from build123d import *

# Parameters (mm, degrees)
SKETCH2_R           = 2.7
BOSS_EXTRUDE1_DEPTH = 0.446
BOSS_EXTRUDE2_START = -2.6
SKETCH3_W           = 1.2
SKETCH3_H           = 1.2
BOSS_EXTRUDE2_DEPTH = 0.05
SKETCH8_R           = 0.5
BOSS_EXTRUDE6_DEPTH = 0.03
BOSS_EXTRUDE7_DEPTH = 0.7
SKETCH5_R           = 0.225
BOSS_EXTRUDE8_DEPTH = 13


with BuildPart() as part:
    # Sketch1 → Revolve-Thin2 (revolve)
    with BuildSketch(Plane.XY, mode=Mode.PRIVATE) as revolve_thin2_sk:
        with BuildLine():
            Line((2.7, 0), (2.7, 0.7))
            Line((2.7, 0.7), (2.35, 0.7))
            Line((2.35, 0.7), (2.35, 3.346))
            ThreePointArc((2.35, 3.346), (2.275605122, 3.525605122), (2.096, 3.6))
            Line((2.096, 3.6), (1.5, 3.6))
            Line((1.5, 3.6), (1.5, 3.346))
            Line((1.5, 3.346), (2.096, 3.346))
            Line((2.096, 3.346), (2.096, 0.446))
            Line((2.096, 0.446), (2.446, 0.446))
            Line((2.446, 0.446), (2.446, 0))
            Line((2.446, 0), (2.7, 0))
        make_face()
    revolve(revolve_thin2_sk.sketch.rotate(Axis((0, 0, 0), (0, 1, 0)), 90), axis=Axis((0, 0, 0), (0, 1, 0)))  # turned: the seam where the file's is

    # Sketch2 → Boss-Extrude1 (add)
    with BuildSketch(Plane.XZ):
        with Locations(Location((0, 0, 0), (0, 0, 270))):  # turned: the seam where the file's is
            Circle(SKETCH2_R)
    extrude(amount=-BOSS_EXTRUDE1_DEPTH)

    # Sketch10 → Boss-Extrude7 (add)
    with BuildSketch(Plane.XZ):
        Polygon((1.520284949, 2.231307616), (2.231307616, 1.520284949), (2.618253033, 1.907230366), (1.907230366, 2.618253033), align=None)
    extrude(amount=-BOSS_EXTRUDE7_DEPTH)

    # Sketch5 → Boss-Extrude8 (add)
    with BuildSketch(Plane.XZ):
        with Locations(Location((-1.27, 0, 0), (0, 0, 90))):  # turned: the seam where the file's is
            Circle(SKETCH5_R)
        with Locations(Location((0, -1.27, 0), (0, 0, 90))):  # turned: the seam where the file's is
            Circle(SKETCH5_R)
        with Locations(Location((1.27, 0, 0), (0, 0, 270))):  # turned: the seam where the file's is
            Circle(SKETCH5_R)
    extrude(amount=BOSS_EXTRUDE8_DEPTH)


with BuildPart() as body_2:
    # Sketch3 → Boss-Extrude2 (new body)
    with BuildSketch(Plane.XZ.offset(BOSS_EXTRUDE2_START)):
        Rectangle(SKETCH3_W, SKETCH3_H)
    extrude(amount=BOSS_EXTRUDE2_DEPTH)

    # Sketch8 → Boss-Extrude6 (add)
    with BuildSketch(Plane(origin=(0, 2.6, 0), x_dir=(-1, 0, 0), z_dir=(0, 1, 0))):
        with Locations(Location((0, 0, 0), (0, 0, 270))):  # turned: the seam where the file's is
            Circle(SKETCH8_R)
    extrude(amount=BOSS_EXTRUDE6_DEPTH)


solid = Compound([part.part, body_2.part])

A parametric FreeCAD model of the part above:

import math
import FreeCAD as App
import Part
import Sketcher

V = App.Vector
Q = App.Units.Quantity


def add_polygon(sketch, points):
    """Adds a closed chain of lines whose ends are joined by coincident constraints."""
    first, n = sketch.GeometryCount, len(points)
    for a, b in zip(points, points[1:] + points[:1]):
        sketch.addGeometry(Part.LineSegment(App.Vector(*a, 0), App.Vector(*b, 0)), False)
    for i in range(n):
        sketch.addConstraint(Sketcher.Constraint("Coincident", first + i, 2, first + (i + 1) % n, 1))

doc = App.newDocument("Part")
body = doc.addObject("PartDesign::Body", "Body")

sketch1 = body.newObject("Sketcher::SketchObject", "Sketch")
sketch1.AttachmentSupport = (doc.getObject("XY_Plane"), [""])
sketch1.MapMode = "FlatFace"
sketch1.addGeometry([
    Part.LineSegment(V(2.7, 0, 0), V(2.7, 0.7, 0)),
    Part.LineSegment(V(2.7, 0.7, 0), V(2.35, 0.7, 0)),
    Part.LineSegment(V(2.35, 0.7, 0), V(2.35, 3.346, 0)),
    Part.ArcOfCircle(Part.Circle(V(2.096, 3.346, 0), V(0, 0, 1), 0.254), math.radians(0), math.radians(90)),
    Part.LineSegment(V(2.096, 3.6, 0), V(1.5, 3.6, 0)),
    Part.LineSegment(V(1.5, 3.6, 0), V(1.5, 3.346, 0)),
    Part.LineSegment(V(1.5, 3.346, 0), V(2.096, 3.346, 0)),
    Part.LineSegment(V(2.096, 3.346, 0), V(2.096, 0.446, 0)),
    Part.LineSegment(V(2.096, 0.446, 0), V(2.446, 0.446, 0)),
    Part.LineSegment(V(2.446, 0.446, 0), V(2.446, 0, 0)),
    Part.LineSegment(V(2.446, 0, 0), V(2.7, 0, 0)),
], False)
sketch1.addConstraint([
    Sketcher.Constraint("Coincident", 0, 2, 1, 1),
    Sketcher.Constraint("Coincident", 1, 2, 2, 1),
    Sketcher.Constraint("Tangent", 2, 2, 3, 1),
    Sketcher.Constraint("Tangent", 3, 2, 4, 1),
    Sketcher.Constraint("Coincident", 4, 2, 5, 1),
    Sketcher.Constraint("Coincident", 5, 2, 6, 1),
    Sketcher.Constraint("Coincident", 6, 2, 7, 1),
    Sketcher.Constraint("Coincident", 7, 2, 8, 1),
    Sketcher.Constraint("Coincident", 8, 2, 9, 1),
    Sketcher.Constraint("Coincident", 9, 2, 10, 1),
    Sketcher.Constraint("Coincident", 10, 2, 0, 1),
    Sketcher.Constraint("Vertical", 0),
    Sketcher.Constraint("Horizontal", 1),
    Sketcher.Constraint("Vertical", 2),
    Sketcher.Constraint("Horizontal", 4),
    Sketcher.Constraint("Vertical", 5),
    Sketcher.Constraint("Horizontal", 6),
    Sketcher.Constraint("Vertical", 7),
    Sketcher.Constraint("Horizontal", 8),
    Sketcher.Constraint("Vertical", 9),
    Sketcher.Constraint("Horizontal", 10),
    Sketcher.Constraint("Coincident", 6, 2, 3, 3),
    Sketcher.Constraint("PointOnObject", 9, 2, -1),
    Sketcher.Constraint("Equal", 1, 8),
    Sketcher.Constraint("DistanceY", 0, 1, 0, 2, 0.7),
    Sketcher.Constraint("DistanceY", 7, 2, 7, 1, 2.9),
    Sketcher.Constraint("Radius", 3, 0.254),
    Sketcher.Constraint("DistanceX", 1, 2, 1, 1, 0.35),
    Sketcher.Constraint("DistanceX", -1, 1, 0, 2, 2.7),
    Sketcher.Constraint("DistanceY", -1, 1, 3, 2, 3.6),
    Sketcher.Constraint("DistanceX", -1, 1, 4, 2, 1.5),
])
revolution = body.newObject("PartDesign::Revolution", "Revolution")
revolution.Profile = sketch1
revolution.ReferenceAxis = (sketch1, ["V_Axis"])
revolution.Angle = 360

sketch2 = body.newObject("Sketcher::SketchObject", "Sketch001")
sketch2.AttachmentSupport = (doc.getObject("XZ_Plane"), [""])
sketch2.MapMode = "FlatFace"
sketch2.addGeometry(Part.Circle(V(0, 0, 0), V(0, 0, 1), 2.7), False)
sketch2.addConstraint([
    Sketcher.Constraint("Coincident", 0, 3, -1, 1),
    Sketcher.Constraint("Diameter", 0, 5.4),
])
pad1 = body.newObject("PartDesign::Pad", "Pad")
pad1.Profile = sketch2
pad1.Length = 0.446
pad1.Reversed = True

sketch3 = body.newObject("Sketcher::SketchObject", "Sketch002")
sketch3.AttachmentSupport = (doc.getObject("XZ_Plane"), [""])
sketch3.MapMode = "FlatFace"
add_polygon(sketch3, [(1.520285, 2.231308), (2.231308, 1.520285), (2.618253, 1.90723), (1.90723, 2.618253)])
sketch3.addConstraint([
    Sketcher.Constraint("Perpendicular", 0, 1),
    Sketcher.Constraint("Perpendicular", 1, 2),
    Sketcher.Constraint("Perpendicular", 2, 3),
    Sketcher.Constraint("Angle", 0, Q("-45 deg")),
    Sketcher.Constraint("DistanceY", -1, 1, 1, 2, 1.90723),
    Sketcher.Constraint("DistanceX", -1, 1, 2, 2, 1.90723),
    Sketcher.Constraint("DistanceY", 0, 2, 2, 2, 1.097968),
    Sketcher.Constraint("Distance", 0, 1.005538),
])
pad2 = body.newObject("PartDesign::Pad", "Pad001")
pad2.Profile = sketch3
pad2.Length = 0.7
pad2.Reversed = True

sketch4 = body.newObject("Sketcher::SketchObject", "Sketch003")
sketch4.AttachmentSupport = (doc.getObject("XZ_Plane"), [""])
sketch4.MapMode = "FlatFace"
sketch4.addGeometry([
    Part.Circle(V(-1.27, 0, 0), V(0, 0, 1), 0.225),
    Part.Circle(V(0, -1.27, 0), V(0, 0, 1), 0.225),
    Part.Circle(V(1.27, 0, 0), V(0, 0, 1), 0.225),
], False)
sketch4.addConstraint([
    Sketcher.Constraint("Equal", 0, 1),
    Sketcher.Constraint("Equal", 1, 2),
    Sketcher.Constraint("Symmetric", 0, 3, 2, 3, -1, 1),
    Sketcher.Constraint("PointOnObject", 0, 3, -1),
    Sketcher.Constraint("PointOnObject", 1, 3, -2),
    Sketcher.Constraint("Diameter", 0, 0.45),
    Sketcher.Constraint("DistanceX", 0, 3, -1, 1, 1.27),
    Sketcher.Constraint("DistanceY", 1, 3, -1, 1, 1.27),
])
pad3 = body.newObject("PartDesign::Pad", "Pad002")
pad3.Profile = sketch4
pad3.Length = 13
body2 = doc.addObject("PartDesign::Body", "Body001")

sketch5 = body2.newObject("Sketcher::SketchObject", "Sketch004")
sketch5.AttachmentSupport = (doc.getObject("XZ_Plane001"), [""])
sketch5.MapMode = "FlatFace"
sketch5.AttachmentOffset = App.Placement(V(0, 0, -2.6), App.Rotation())
add_polygon(sketch5, [(-0.6, 0.6), (-0.6, -0.6), (0.6, -0.6), (0.6, 0.6)])
sketch5.addConstraint([
    Sketcher.Constraint("Vertical", 0),
    Sketcher.Constraint("Horizontal", 1),
    Sketcher.Constraint("Vertical", 2),
    Sketcher.Constraint("Horizontal", 3),
    Sketcher.Constraint("Symmetric", 0, 2, 2, 2, -1, 1),
    Sketcher.Constraint("Equal", 3, 0),
    Sketcher.Constraint("DistanceX", 1, 1, 1, 2, 1.2),
])
pad4 = body2.newObject("PartDesign::Pad", "Pad003")
pad4.Profile = sketch5
pad4.Length = 0.05

sketch6 = body2.newObject("Sketcher::SketchObject", "Sketch005")
sketch6.AttachmentSupport = (doc.getObject("XZ_Plane001"), [""])
sketch6.MapMode = "FlatFace"
sketch6.AttachmentOffset = App.Placement(V(0, 0, -2.6), App.Rotation())
sketch6.addGeometry(Part.Circle(V(0, 0, 0), V(0, 0, 1), 0.5), False)
sketch6.addConstraint([
    Sketcher.Constraint("Coincident", 0, 3, -1, 1),
    Sketcher.Constraint("Diameter", 0, 1.0),
])
pad5 = body2.newObject("PartDesign::Pad", "Pad004")
pad5.Profile = sketch6
pad5.Length = 0.03
pad5.Reversed = True

doc.recompute()
